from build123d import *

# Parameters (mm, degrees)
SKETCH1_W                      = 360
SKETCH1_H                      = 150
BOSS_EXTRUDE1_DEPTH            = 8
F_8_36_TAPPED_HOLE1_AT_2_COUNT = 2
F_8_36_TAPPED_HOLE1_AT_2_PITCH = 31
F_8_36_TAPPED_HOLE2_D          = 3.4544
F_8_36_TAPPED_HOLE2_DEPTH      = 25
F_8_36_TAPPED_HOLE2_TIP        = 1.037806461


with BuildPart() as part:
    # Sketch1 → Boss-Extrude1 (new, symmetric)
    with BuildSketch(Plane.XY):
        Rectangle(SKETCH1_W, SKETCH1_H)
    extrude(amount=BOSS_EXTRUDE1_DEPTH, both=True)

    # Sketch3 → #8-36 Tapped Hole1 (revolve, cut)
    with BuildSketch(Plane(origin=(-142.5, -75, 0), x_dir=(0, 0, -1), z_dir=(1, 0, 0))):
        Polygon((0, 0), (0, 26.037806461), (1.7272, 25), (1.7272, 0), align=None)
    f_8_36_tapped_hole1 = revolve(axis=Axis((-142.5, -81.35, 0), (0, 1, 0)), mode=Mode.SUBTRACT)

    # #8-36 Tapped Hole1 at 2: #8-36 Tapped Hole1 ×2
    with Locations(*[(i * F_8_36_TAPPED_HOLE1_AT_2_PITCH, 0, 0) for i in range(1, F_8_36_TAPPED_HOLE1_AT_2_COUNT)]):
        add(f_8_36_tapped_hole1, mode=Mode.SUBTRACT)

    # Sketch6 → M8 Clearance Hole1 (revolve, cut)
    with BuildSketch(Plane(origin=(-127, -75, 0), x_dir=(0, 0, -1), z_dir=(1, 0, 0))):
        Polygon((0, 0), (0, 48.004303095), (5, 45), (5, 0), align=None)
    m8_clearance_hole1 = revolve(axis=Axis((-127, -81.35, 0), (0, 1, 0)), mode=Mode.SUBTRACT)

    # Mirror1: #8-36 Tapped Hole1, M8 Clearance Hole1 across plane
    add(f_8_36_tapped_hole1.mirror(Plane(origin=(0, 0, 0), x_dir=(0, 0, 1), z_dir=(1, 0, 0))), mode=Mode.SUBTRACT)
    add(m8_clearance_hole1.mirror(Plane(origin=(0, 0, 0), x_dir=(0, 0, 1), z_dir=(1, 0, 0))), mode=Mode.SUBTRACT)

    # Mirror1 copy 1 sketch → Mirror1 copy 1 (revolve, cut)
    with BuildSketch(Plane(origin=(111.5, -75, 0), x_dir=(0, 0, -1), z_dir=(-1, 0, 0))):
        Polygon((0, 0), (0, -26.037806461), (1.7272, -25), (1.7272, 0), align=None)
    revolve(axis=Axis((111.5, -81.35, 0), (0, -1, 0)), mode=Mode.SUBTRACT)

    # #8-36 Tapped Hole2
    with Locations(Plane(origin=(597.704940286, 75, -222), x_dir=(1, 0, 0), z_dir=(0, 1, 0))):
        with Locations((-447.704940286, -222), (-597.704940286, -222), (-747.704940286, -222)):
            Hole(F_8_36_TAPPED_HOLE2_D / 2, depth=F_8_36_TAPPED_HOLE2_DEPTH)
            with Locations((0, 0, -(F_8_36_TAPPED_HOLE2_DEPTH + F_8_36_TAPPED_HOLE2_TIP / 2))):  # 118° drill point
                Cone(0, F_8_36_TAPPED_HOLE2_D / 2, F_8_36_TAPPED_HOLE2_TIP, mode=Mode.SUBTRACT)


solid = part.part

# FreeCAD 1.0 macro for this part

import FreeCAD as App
import Part
import Sketcher

V = App.Vector
Q = App.Units.Quantity


def add_polygon(sketch, points):
    """Adds a closed chain of lines whose ends are joined by coincident constraints."""
    first, n = sketch.GeometryCount, len(points)
    for a, b in zip(points, points[1:] + points[:1]):
        sketch.addGeometry(Part.LineSegment(App.Vector(*a, 0), App.Vector(*b, 0)), False)
    for i in range(n):
        sketch.addConstraint(Sketcher.Constraint("Coincident", first + i, 2, first + (i + 1) % n, 1))

doc = App.newDocument("Part")
body = doc.addObject("PartDesign::Body", "Body")

sketch1 = body.newObject("Sketcher::SketchObject", "Sketch")
sketch1.AttachmentSupport = (doc.getObject("XY_Plane"), [""])
sketch1.MapMode = "FlatFace"
add_polygon(sketch1, [(-180, 75), (-180, -75), (180, -75), (180, 75)])
sketch1.addConstraint(Sketcher.Constraint("Vertical", 0))
sketch1.addConstraint(Sketcher.Constraint("Horizontal", 1))
sketch1.addConstraint(Sketcher.Constraint("Vertical", 2))
sketch1.addConstraint(Sketcher.Constraint("Horizontal", 3))
sketch1.addConstraint(Sketcher.Constraint("Symmetric", 0, 2, 2, 2, -1, 1))
sketch1.addConstraint(Sketcher.Constraint("DistanceX", 1, 1, 1, 2, Q("360 mm")))
sketch1.addConstraint(Sketcher.Constraint("DistanceY", 0, 2, 0, 1, Q("150 mm")))
pad1 = body.newObject("PartDesign::Pad", "Pad")
pad1.Profile = sketch1
pad1.Length = 16
pad1.Midplane = True

sketch2 = body.newObject("Sketcher::SketchObject", "Sketch001")
sketch2.AttachmentSupport = (doc.getObject("YZ_Plane"), [""])
sketch2.MapMode = "FlatFace"
sketch2.AttachmentOffset = App.Placement(V(0, 0, -142.5), App.Rotation())
add_polygon(sketch2, [(-49, 0), (-75, 0), (-75, -1.7), (-50, -1.7)])
sketch2.addConstraint(Sketcher.Constraint("Horizontal", 0))
sketch2.addConstraint(Sketcher.Constraint("Vertical", 1))
sketch2.addConstraint(Sketcher.Constraint("Horizontal", 2))
sketch2.addConstraint(Sketcher.Constraint("PointOnObject", 0, 2, -1))
sketch2.addConstraint(Sketcher.Constraint("DistanceX", 2, 1, 2, 2, Q("25 mm")))
sketch2.addConstraint(Sketcher.Constraint("Angle", 3, Q("59 deg")))
sketch2.addConstraint(Sketcher.Constraint("DistanceX", 0, 2, -1, 1, Q("75 mm")))
sketch2.addConstraint(Sketcher.Constraint("DistanceY", 1, 2, 1, 1, Q("1.7272 mm")))
groove = body.newObject("PartDesign::Groove", "Groove")
groove.Profile = sketch2
groove.ReferenceAxis = (sketch2, ["H_Axis"])
groove.Angle = 360
doc.recompute()

linearpattern = body.newObject("PartDesign::LinearPattern", "LinearPattern")
linearpattern.Originals = [groove]
linearpattern.Direction = (doc.getObject("X_Axis"), [""])
linearpattern.Mode = "offset"
linearpattern.Offset = 31
linearpattern.Occurrences = 2
body.Tip = linearpattern

sketch3 = body.newObject("Sketcher::SketchObject", "Sketch002")
sketch3.AttachmentSupport = (doc.getObject("YZ_Plane"), [""])
sketch3.MapMode = "FlatFace"
sketch3.AttachmentOffset = App.Placement(V(0, 0, -127), App.Rotation())
add_polygon(sketch3, [(-27, 0), (-75, 0), (-75, -5), (-30, -5)])
sketch3.addConstraint(Sketcher.Constraint("Horizontal", 0))
sketch3.addConstraint(Sketcher.Constraint("Vertical", 1))
sketch3.addConstraint(Sketcher.Constraint("Horizontal", 2))
sketch3.addConstraint(Sketcher.Constraint("PointOnObject", 0, 2, -1))
sketch3.addConstraint(Sketcher.Constraint("DistanceX", 2, 1, 2, 2, Q("45 mm")))
sketch3.addConstraint(Sketcher.Constraint("DistanceY", 1, 2, 1, 1, Q("5 mm")))
sketch3.addConstraint(Sketcher.Constraint("Angle", 3, Q("59 deg")))
sketch3.addConstraint(Sketcher.Constraint("DistanceX", 0, 2, -1, 1, Q("75 mm")))
groove2 = body.newObject("PartDesign::Groove", "Groove001")
groove2.Profile = sketch3
groove2.ReferenceAxis = (sketch3, ["H_Axis"])
groove2.Angle = 360
doc.recompute()

mirrored = body.newObject("PartDesign::Mirrored", "Mirrored")
mirrored.Originals = [groove, groove2]
mirrored.MirrorPlane = (doc.getObject("YZ_Plane"), [""])
body.Tip = mirrored

sketch4 = body.newObject("Sketcher::SketchObject", "Sketch003")
sketch4.AttachmentSupport = (doc.getObject("YZ_Plane"), [""])
sketch4.MapMode = "FlatFace"
sketch4.AttachmentOffset = App.Placement(V(0, 0, 111.5), App.Rotation())
add_polygon(sketch4, [(-75, 0), (-49, 0), (-50, -1.7), (-75, -1.7)])
sketch4.addConstraint(Sketcher.Constraint("Horizontal", 0))
sketch4.addConstraint(Sketcher.Constraint("Horizontal", 2))
sketch4.addConstraint(Sketcher.Constraint("Vertical", 3))
sketch4.addConstraint(Sketcher.Constraint("PointOnObject", 0, 2, -1))
sketch4.addConstraint(Sketcher.Constraint("DistanceX", 2, 2, 2, 1, Q("25 mm")))
sketch4.addConstraint(Sketcher.Constraint("Angle", 1, Q("-121 deg")))
sketch4.addConstraint(Sketcher.Constraint("DistanceX", 1, 2, -1, 1, Q("50 mm")))
sketch4.addConstraint(Sketcher.Constraint("DistanceY", 3, 1, 3, 2, Q("1.7272 mm")))
groove3 = body.newObject("PartDesign::Groove", "Groove002")
groove3.Profile = sketch4
groove3.ReferenceAxis = (sketch4, ["H_Axis"])
groove3.Angle = 360

sketch5 = body.newObject("Sketcher::SketchObject", "Sketch004")
sketch5.AttachmentSupport = (doc.getObject("XZ_Plane"), [""])
sketch5.MapMode = "FlatFace"
sketch5.AttachmentOffset = App.Placement(V(0, 0, -75), App.Rotation())
sketch5.addGeometry(Part.Circle(V(150, 0, 0), V(0, 0, 1), 1.7), False)
sketch5.addGeometry(Part.Circle(V(0, 0, 0), V(0, 0, 1), 1.7), False)
sketch5.addGeometry(Part.Circle(V(-150, 0, 0), V(0, 0, 1), 1.7), False)
sketch5.addConstraint(Sketcher.Constraint("Coincident", 1, 3, -1, 1))
sketch5.addConstraint(Sketcher.Constraint("Equal", 0, 1))
sketch5.addConstraint(Sketcher.Constraint("Equal", 1, 2))
sketch5.addConstraint(Sketcher.Constraint("Symmetric", 0, 3, 2, 3, -1, 1))
sketch5.addConstraint(Sketcher.Constraint("PointOnObject", 0, 3, -1))
sketch5.addConstraint(Sketcher.Constraint("DistanceX", -1, 1, 0, 3, Q("150 mm")))
sketch5.addConstraint(Sketcher.Constraint("Diameter", 0, Q("3.4544 mm")))
doc.recompute()
hole = body.newObject("PartDesign::Hole", "Hole")
hole.Profile = sketch5
hole.ThreadType = "None"
hole.Diameter = 3.4544
hole.DepthType = "Dimension"
hole.Depth = 25
hole.DrillPoint = "Angled"
hole.DrillPointAngle = 118
hole.Reversed = True

doc.recompute()
